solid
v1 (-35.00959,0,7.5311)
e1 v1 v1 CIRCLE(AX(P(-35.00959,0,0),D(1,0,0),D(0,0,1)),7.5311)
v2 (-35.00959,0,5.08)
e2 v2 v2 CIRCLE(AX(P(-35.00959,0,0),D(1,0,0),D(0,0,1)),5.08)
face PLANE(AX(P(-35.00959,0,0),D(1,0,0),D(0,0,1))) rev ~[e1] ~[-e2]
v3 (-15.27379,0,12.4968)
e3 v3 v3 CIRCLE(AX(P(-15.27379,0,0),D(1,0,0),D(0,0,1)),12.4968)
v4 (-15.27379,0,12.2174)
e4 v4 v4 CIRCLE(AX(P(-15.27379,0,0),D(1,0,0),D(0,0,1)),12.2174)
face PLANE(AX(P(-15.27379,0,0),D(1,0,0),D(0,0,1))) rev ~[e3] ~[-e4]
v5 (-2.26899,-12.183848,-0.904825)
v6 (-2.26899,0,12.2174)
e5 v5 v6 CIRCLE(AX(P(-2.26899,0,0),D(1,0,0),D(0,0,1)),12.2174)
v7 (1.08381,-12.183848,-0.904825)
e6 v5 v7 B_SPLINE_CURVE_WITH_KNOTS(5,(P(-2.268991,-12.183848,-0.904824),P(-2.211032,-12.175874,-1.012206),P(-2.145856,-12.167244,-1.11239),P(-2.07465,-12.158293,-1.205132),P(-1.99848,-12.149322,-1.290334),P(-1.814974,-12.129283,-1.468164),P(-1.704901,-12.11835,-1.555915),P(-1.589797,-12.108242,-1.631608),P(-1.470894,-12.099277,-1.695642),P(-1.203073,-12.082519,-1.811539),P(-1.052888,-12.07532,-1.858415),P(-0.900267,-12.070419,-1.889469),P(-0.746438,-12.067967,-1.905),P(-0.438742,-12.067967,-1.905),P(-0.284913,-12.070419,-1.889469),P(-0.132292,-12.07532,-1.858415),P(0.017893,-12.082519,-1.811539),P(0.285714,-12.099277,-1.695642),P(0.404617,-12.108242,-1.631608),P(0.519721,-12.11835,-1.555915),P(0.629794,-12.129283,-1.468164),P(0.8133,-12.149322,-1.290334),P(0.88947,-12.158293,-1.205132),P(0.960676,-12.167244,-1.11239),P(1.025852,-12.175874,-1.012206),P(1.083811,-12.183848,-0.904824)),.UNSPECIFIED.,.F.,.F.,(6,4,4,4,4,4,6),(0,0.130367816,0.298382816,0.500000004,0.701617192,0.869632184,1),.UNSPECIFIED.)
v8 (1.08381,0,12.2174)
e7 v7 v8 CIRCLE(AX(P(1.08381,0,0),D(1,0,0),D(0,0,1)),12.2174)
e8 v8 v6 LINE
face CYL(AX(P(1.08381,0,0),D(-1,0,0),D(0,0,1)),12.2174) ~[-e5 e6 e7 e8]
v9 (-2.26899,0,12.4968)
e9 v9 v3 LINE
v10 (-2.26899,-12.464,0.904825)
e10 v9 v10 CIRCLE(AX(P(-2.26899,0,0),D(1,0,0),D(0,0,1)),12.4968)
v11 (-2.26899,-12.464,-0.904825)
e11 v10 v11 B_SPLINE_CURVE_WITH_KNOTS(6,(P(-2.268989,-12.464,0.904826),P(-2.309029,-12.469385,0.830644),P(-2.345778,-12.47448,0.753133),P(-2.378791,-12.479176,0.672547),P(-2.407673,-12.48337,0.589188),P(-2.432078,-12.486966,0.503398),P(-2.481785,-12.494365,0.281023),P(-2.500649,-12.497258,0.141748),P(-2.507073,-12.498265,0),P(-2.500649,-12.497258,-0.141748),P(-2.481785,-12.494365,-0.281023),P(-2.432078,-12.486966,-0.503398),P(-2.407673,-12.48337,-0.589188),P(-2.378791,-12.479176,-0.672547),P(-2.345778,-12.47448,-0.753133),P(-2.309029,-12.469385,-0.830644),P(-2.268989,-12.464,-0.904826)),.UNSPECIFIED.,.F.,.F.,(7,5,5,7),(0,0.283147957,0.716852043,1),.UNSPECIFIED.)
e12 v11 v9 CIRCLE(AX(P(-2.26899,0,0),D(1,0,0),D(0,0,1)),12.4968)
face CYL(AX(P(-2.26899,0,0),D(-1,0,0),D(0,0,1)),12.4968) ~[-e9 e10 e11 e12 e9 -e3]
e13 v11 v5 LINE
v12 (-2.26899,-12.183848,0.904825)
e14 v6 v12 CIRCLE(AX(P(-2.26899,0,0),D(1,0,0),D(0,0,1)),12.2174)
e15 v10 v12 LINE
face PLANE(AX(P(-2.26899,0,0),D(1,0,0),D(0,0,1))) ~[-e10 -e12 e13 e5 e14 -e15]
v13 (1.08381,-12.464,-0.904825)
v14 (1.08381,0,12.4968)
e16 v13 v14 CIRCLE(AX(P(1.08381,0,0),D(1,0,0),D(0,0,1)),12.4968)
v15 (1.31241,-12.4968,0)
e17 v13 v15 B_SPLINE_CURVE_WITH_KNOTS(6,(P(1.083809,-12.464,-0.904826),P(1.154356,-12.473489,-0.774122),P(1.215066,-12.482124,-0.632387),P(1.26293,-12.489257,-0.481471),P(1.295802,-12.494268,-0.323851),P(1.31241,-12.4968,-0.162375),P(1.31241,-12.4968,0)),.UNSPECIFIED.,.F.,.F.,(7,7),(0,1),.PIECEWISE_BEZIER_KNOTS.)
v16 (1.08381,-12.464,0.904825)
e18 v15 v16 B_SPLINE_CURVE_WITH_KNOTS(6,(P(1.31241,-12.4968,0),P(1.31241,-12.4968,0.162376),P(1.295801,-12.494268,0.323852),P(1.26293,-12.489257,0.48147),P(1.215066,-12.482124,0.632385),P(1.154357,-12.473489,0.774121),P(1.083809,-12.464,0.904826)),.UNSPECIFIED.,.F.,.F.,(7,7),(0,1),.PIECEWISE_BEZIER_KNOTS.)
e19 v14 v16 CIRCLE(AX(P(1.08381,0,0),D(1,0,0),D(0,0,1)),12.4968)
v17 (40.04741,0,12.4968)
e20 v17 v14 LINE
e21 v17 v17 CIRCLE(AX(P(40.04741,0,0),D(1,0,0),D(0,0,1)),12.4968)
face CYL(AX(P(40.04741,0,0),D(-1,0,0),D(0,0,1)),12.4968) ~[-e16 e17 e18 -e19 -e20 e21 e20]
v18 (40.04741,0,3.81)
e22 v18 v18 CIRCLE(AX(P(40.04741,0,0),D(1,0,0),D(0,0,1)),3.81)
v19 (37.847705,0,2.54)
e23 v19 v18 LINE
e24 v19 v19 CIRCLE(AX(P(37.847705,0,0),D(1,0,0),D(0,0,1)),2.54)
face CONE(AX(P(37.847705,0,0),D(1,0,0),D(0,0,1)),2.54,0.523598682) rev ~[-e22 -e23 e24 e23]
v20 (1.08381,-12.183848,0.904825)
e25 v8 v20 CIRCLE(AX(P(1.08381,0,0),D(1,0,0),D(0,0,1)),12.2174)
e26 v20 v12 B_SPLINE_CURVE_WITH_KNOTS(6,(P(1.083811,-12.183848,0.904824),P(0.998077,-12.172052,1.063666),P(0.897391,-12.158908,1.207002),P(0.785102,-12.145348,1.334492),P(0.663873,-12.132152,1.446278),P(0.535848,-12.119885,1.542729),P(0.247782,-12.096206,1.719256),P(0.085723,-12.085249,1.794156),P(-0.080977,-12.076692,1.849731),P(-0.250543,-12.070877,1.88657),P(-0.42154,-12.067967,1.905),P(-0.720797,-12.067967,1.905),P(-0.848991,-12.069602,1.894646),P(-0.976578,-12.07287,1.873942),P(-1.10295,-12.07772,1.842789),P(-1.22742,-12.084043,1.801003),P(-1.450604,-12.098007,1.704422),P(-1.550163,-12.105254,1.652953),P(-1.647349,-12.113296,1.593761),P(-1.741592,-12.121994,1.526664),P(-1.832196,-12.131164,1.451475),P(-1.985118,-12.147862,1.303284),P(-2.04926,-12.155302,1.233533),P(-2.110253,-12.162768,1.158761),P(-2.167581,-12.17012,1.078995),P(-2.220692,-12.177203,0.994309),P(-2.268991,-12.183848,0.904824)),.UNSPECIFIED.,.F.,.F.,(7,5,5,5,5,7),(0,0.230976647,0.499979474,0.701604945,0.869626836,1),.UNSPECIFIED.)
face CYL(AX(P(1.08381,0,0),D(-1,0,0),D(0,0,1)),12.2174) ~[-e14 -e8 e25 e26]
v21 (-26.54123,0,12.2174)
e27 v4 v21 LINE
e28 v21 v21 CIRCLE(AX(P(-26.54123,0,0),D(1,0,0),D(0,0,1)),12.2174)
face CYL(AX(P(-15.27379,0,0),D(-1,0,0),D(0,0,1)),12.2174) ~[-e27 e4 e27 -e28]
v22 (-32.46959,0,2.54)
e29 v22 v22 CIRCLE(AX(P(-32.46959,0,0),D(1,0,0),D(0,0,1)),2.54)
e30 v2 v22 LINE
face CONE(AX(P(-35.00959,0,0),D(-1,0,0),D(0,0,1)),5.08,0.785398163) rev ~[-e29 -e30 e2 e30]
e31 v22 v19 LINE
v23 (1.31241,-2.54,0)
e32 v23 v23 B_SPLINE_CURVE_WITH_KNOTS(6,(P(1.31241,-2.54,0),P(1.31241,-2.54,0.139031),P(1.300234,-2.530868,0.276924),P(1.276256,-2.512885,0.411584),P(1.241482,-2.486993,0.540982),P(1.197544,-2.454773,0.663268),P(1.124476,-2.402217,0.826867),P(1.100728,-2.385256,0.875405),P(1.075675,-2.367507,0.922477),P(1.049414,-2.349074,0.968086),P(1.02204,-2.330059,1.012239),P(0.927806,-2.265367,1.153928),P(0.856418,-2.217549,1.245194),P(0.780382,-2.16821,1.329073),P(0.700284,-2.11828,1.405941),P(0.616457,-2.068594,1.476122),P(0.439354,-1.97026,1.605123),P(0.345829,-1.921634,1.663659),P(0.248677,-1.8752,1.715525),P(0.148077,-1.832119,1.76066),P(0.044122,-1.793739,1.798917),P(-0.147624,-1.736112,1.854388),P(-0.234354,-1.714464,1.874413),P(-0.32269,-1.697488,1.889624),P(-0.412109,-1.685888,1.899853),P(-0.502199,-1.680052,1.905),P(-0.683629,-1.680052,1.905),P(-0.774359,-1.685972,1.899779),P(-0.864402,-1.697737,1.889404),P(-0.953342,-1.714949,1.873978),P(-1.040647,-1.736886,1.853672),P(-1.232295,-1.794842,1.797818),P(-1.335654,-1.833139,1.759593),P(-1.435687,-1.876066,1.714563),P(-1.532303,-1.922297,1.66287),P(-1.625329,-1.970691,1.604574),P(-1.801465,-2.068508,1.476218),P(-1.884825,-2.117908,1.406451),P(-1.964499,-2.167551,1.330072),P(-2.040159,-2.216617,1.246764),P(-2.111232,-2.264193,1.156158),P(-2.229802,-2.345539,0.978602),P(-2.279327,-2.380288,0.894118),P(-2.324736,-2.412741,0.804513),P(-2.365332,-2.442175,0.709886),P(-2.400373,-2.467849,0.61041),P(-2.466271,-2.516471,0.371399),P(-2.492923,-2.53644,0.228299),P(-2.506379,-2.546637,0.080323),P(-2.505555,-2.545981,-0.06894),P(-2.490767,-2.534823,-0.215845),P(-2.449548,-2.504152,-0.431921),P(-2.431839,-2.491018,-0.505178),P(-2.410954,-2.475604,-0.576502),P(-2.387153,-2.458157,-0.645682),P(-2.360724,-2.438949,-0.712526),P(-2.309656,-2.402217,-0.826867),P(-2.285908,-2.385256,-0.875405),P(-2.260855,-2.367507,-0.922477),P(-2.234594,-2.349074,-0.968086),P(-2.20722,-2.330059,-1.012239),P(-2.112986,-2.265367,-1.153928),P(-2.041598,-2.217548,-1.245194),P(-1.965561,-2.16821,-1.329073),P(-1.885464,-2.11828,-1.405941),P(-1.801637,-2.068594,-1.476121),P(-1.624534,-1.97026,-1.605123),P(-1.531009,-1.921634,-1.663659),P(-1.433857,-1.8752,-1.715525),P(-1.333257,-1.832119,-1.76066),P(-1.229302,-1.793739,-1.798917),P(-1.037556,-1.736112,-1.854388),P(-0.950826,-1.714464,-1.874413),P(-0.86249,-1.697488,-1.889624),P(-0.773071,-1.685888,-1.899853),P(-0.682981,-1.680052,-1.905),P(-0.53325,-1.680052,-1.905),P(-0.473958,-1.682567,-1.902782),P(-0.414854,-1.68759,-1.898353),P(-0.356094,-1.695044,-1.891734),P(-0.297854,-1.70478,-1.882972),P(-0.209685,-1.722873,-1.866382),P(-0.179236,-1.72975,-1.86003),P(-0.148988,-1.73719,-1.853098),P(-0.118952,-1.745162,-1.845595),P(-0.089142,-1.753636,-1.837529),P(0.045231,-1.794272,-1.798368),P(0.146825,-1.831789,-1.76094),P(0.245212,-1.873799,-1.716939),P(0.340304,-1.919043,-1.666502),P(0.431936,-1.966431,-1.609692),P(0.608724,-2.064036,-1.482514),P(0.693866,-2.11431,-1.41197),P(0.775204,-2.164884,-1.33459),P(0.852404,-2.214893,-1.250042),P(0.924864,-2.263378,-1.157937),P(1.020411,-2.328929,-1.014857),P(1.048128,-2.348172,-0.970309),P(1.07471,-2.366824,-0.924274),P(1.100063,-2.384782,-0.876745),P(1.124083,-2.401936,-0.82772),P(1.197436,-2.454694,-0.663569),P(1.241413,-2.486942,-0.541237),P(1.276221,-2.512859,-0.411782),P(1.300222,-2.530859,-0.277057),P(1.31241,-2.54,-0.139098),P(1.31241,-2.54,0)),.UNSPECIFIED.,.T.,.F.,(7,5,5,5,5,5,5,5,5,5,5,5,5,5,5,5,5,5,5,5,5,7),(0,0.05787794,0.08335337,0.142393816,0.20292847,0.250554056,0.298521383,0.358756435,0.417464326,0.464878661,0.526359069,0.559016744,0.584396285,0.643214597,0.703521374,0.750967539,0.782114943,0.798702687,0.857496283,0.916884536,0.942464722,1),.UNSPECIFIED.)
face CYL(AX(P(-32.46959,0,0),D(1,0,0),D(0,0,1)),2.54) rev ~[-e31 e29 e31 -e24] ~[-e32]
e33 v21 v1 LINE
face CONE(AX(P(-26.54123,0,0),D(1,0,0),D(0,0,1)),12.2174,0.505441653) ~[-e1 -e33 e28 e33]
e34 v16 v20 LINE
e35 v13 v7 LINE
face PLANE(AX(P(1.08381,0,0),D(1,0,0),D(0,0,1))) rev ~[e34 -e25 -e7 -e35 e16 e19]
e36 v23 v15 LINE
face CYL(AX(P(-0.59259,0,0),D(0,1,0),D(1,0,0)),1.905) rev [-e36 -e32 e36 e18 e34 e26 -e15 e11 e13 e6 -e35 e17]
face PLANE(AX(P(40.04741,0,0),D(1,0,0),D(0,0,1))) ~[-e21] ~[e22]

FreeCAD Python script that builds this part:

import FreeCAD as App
import Part
import Sketcher

V = App.Vector
Q = App.Units.Quantity

doc = App.newDocument("Part")
body = doc.addObject("PartDesign::Body", "Body")

# Sketch on XZ plane
sketch1 = body.newObject("Sketcher::SketchObject", "Sketch")
sketch1.AttachmentSupport = (doc.getObject("XZ_Plane"), [""])
sketch1.MapMode = "FlatFace"
sketch1.addGeometry(Part.LineSegment(V(-35.01, 7.53, 0), V(-35.01, 5.08, 0)), False)
sketch1.addGeometry(Part.LineSegment(V(-35.01, 5.08, 0), V(-32.47, 2.54, 0)), False)
sketch1.addGeometry(Part.LineSegment(V(-32.47, 2.54, 0), V(37.85, 2.54, 0)), False)
sketch1.addGeometry(Part.LineSegment(V(37.85, 2.54, 0), V(40.05, 3.81, 0)), False)
sketch1.addGeometry(Part.LineSegment(V(40.05, 3.81, 0), V(40.05, 12.5, 0)), False)
sketch1.addGeometry(Part.LineSegment(V(40.05, 12.5, 0), V(1.08, 12.5, 0)), False)
sketch1.addGeometry(Part.LineSegment(V(1.08, 12.5, 0), V(1.08, 12.22, 0)), False)
sketch1.addGeometry(Part.LineSegment(V(1.08, 12.22, 0), V(-2.27, 12.22, 0)), False)
sketch1.addGeometry(Part.LineSegment(V(-2.27, 12.22, 0), V(-2.27, 12.5, 0)), False)
sketch1.addGeometry(Part.LineSegment(V(-2.27, 12.5, 0), V(-15.27, 12.5, 0)), False)
sketch1.addGeometry(Part.LineSegment(V(-15.27, 12.5, 0), V(-15.27, 12.22, 0)), False)
sketch1.addGeometry(Part.LineSegment(V(-15.27, 12.22, 0), V(-26.54, 12.22, 0)), False)
sketch1.addGeometry(Part.LineSegment(V(-26.54, 12.22, 0), V(-35.01, 7.53, 0)), False)
sketch1.addConstraint(Sketcher.Constraint("Coincident", 0, 2, 1, 1))
sketch1.addConstraint(Sketcher.Constraint("Coincident", 1, 2, 2, 1))
sketch1.addConstraint(Sketcher.Constraint("Coincident", 2, 2, 3, 1))
sketch1.addConstraint(Sketcher.Constraint("Coincident", 3, 2, 4, 1))
sketch1.addConstraint(Sketcher.Constraint("Coincident", 4, 2, 5, 1))
sketch1.addConstraint(Sketcher.Constraint("Coincident", 5, 2, 6, 1))
sketch1.addConstraint(Sketcher.Constraint("Coincident", 6, 2, 7, 1))
sketch1.addConstraint(Sketcher.Constraint("Coincident", 7, 2, 8, 1))
sketch1.addConstraint(Sketcher.Constraint("Coincident", 8, 2, 9, 1))
sketch1.addConstraint(Sketcher.Constraint("Coincident", 9, 2, 10, 1))
sketch1.addConstraint(Sketcher.Constraint("Coincident", 10, 2, 11, 1))
sketch1.addConstraint(Sketcher.Constraint("Coincident", 11, 2, 12, 1))
sketch1.addConstraint(Sketcher.Constraint("Coincident", 12, 2, 0, 1))
sketch1.addConstraint(Sketcher.Constraint("Vertical", 0))
sketch1.addConstraint(Sketcher.Constraint("Horizontal", 2))
sketch1.addConstraint(Sketcher.Constraint("Vertical", 4))
sketch1.addConstraint(Sketcher.Constraint("Horizontal", 5))
sketch1.addConstraint(Sketcher.Constraint("Vertical", 6))
sketch1.addConstraint(Sketcher.Constraint("Horizontal", 7))
sketch1.addConstraint(Sketcher.Constraint("Vertical", 8))
sketch1.addConstraint(Sketcher.Constraint("Horizontal", 9))
sketch1.addConstraint(Sketcher.Constraint("Vertical", 10))
sketch1.addConstraint(Sketcher.Constraint("Horizontal", 11))
sketch1.addConstraint(Sketcher.Constraint("Horizontal", 5, 2, 8, 2))
sketch1.addConstraint(Sketcher.Constraint("Horizontal", 7, 2, 10, 2))
sketch1.addConstraint(Sketcher.Constraint("Angle", 1, Q("-45 deg")))
sketch1.addConstraint(Sketcher.Constraint("Angle", 3, Q("29.999995 deg")))
sketch1.addConstraint(Sketcher.Constraint("Distance", 3, Q("0.1 in")))
sketch1.addConstraint(Sketcher.Constraint("DistanceY", -1, 1, 0, 2, Q("0.2 in")))
sketch1.addConstraint(Sketcher.Constraint("DistanceY", -1, 1, 1, 2, Q("0.1 in")))
sketch1.addConstraint(Sketcher.Constraint("DistanceX", 5, 2, 5, 1, Q("1.534 in")))
sketch1.addConstraint(Sketcher.Constraint("DistanceX", 7, 2, 7, 1, Q("0.132 in")))
sketch1.addConstraint(Sketcher.Constraint("DistanceX", 9, 2, 9, 1, Q("0.512 in")))
sketch1.addConstraint(Sketcher.Constraint("DistanceY", 4, 1, 4, 2, Q("0.342 in")))
sketch1.addConstraint(Sketcher.Constraint("DistanceY", 6, 2, 6, 1, Q("0.011 in")))
sketch1.addConstraint(Sketcher.Constraint("DistanceX", 11, 2, 11, 1, Q("0.4436 in")))
sketch1.addConstraint(Sketcher.Constraint("DistanceY", 0, 2, 0, 1, Q("0.0965 in")))
sketch1.addConstraint(Sketcher.Constraint("DistanceX", 1, 2, 3, 2, Q("2.855 in")))
sketch1.addConstraint(Sketcher.Constraint("DistanceX", 0, 2, -1, 1, 35.00959))
revolution = body.newObject("PartDesign::Revolution", "Revolution")
revolution.Profile = sketch1
revolution.ReferenceAxis = (sketch1, ["H_Axis"])
revolution.Angle = 360

# Sketch on XZ plane
sketch2 = body.newObject("Sketcher::SketchObject", "Sketch001")
sketch2.AttachmentSupport = (doc.getObject("XZ_Plane"), [""])
sketch2.MapMode = "FlatFace"
sketch2.addGeometry(Part.Circle(V(-0.6, 0, 0), V(0, 0, 1), 1.9), False)
sketch2.addConstraint(Sketcher.Constraint("PointOnObject", 0, 3, -1))
sketch2.addConstraint(Sketcher.Constraint("Diameter", 0, Q("0.15 in")))
sketch2.addConstraint(Sketcher.Constraint("DistanceX", 0, 3, -1, 1, 0.59259))
pocket1 = body.newObject("PartDesign::Pocket", "Pocket")
pocket1.Profile = sketch2
pocket1.Length = Q("1 in")
pocket1.Reversed = True

doc.recompute()
